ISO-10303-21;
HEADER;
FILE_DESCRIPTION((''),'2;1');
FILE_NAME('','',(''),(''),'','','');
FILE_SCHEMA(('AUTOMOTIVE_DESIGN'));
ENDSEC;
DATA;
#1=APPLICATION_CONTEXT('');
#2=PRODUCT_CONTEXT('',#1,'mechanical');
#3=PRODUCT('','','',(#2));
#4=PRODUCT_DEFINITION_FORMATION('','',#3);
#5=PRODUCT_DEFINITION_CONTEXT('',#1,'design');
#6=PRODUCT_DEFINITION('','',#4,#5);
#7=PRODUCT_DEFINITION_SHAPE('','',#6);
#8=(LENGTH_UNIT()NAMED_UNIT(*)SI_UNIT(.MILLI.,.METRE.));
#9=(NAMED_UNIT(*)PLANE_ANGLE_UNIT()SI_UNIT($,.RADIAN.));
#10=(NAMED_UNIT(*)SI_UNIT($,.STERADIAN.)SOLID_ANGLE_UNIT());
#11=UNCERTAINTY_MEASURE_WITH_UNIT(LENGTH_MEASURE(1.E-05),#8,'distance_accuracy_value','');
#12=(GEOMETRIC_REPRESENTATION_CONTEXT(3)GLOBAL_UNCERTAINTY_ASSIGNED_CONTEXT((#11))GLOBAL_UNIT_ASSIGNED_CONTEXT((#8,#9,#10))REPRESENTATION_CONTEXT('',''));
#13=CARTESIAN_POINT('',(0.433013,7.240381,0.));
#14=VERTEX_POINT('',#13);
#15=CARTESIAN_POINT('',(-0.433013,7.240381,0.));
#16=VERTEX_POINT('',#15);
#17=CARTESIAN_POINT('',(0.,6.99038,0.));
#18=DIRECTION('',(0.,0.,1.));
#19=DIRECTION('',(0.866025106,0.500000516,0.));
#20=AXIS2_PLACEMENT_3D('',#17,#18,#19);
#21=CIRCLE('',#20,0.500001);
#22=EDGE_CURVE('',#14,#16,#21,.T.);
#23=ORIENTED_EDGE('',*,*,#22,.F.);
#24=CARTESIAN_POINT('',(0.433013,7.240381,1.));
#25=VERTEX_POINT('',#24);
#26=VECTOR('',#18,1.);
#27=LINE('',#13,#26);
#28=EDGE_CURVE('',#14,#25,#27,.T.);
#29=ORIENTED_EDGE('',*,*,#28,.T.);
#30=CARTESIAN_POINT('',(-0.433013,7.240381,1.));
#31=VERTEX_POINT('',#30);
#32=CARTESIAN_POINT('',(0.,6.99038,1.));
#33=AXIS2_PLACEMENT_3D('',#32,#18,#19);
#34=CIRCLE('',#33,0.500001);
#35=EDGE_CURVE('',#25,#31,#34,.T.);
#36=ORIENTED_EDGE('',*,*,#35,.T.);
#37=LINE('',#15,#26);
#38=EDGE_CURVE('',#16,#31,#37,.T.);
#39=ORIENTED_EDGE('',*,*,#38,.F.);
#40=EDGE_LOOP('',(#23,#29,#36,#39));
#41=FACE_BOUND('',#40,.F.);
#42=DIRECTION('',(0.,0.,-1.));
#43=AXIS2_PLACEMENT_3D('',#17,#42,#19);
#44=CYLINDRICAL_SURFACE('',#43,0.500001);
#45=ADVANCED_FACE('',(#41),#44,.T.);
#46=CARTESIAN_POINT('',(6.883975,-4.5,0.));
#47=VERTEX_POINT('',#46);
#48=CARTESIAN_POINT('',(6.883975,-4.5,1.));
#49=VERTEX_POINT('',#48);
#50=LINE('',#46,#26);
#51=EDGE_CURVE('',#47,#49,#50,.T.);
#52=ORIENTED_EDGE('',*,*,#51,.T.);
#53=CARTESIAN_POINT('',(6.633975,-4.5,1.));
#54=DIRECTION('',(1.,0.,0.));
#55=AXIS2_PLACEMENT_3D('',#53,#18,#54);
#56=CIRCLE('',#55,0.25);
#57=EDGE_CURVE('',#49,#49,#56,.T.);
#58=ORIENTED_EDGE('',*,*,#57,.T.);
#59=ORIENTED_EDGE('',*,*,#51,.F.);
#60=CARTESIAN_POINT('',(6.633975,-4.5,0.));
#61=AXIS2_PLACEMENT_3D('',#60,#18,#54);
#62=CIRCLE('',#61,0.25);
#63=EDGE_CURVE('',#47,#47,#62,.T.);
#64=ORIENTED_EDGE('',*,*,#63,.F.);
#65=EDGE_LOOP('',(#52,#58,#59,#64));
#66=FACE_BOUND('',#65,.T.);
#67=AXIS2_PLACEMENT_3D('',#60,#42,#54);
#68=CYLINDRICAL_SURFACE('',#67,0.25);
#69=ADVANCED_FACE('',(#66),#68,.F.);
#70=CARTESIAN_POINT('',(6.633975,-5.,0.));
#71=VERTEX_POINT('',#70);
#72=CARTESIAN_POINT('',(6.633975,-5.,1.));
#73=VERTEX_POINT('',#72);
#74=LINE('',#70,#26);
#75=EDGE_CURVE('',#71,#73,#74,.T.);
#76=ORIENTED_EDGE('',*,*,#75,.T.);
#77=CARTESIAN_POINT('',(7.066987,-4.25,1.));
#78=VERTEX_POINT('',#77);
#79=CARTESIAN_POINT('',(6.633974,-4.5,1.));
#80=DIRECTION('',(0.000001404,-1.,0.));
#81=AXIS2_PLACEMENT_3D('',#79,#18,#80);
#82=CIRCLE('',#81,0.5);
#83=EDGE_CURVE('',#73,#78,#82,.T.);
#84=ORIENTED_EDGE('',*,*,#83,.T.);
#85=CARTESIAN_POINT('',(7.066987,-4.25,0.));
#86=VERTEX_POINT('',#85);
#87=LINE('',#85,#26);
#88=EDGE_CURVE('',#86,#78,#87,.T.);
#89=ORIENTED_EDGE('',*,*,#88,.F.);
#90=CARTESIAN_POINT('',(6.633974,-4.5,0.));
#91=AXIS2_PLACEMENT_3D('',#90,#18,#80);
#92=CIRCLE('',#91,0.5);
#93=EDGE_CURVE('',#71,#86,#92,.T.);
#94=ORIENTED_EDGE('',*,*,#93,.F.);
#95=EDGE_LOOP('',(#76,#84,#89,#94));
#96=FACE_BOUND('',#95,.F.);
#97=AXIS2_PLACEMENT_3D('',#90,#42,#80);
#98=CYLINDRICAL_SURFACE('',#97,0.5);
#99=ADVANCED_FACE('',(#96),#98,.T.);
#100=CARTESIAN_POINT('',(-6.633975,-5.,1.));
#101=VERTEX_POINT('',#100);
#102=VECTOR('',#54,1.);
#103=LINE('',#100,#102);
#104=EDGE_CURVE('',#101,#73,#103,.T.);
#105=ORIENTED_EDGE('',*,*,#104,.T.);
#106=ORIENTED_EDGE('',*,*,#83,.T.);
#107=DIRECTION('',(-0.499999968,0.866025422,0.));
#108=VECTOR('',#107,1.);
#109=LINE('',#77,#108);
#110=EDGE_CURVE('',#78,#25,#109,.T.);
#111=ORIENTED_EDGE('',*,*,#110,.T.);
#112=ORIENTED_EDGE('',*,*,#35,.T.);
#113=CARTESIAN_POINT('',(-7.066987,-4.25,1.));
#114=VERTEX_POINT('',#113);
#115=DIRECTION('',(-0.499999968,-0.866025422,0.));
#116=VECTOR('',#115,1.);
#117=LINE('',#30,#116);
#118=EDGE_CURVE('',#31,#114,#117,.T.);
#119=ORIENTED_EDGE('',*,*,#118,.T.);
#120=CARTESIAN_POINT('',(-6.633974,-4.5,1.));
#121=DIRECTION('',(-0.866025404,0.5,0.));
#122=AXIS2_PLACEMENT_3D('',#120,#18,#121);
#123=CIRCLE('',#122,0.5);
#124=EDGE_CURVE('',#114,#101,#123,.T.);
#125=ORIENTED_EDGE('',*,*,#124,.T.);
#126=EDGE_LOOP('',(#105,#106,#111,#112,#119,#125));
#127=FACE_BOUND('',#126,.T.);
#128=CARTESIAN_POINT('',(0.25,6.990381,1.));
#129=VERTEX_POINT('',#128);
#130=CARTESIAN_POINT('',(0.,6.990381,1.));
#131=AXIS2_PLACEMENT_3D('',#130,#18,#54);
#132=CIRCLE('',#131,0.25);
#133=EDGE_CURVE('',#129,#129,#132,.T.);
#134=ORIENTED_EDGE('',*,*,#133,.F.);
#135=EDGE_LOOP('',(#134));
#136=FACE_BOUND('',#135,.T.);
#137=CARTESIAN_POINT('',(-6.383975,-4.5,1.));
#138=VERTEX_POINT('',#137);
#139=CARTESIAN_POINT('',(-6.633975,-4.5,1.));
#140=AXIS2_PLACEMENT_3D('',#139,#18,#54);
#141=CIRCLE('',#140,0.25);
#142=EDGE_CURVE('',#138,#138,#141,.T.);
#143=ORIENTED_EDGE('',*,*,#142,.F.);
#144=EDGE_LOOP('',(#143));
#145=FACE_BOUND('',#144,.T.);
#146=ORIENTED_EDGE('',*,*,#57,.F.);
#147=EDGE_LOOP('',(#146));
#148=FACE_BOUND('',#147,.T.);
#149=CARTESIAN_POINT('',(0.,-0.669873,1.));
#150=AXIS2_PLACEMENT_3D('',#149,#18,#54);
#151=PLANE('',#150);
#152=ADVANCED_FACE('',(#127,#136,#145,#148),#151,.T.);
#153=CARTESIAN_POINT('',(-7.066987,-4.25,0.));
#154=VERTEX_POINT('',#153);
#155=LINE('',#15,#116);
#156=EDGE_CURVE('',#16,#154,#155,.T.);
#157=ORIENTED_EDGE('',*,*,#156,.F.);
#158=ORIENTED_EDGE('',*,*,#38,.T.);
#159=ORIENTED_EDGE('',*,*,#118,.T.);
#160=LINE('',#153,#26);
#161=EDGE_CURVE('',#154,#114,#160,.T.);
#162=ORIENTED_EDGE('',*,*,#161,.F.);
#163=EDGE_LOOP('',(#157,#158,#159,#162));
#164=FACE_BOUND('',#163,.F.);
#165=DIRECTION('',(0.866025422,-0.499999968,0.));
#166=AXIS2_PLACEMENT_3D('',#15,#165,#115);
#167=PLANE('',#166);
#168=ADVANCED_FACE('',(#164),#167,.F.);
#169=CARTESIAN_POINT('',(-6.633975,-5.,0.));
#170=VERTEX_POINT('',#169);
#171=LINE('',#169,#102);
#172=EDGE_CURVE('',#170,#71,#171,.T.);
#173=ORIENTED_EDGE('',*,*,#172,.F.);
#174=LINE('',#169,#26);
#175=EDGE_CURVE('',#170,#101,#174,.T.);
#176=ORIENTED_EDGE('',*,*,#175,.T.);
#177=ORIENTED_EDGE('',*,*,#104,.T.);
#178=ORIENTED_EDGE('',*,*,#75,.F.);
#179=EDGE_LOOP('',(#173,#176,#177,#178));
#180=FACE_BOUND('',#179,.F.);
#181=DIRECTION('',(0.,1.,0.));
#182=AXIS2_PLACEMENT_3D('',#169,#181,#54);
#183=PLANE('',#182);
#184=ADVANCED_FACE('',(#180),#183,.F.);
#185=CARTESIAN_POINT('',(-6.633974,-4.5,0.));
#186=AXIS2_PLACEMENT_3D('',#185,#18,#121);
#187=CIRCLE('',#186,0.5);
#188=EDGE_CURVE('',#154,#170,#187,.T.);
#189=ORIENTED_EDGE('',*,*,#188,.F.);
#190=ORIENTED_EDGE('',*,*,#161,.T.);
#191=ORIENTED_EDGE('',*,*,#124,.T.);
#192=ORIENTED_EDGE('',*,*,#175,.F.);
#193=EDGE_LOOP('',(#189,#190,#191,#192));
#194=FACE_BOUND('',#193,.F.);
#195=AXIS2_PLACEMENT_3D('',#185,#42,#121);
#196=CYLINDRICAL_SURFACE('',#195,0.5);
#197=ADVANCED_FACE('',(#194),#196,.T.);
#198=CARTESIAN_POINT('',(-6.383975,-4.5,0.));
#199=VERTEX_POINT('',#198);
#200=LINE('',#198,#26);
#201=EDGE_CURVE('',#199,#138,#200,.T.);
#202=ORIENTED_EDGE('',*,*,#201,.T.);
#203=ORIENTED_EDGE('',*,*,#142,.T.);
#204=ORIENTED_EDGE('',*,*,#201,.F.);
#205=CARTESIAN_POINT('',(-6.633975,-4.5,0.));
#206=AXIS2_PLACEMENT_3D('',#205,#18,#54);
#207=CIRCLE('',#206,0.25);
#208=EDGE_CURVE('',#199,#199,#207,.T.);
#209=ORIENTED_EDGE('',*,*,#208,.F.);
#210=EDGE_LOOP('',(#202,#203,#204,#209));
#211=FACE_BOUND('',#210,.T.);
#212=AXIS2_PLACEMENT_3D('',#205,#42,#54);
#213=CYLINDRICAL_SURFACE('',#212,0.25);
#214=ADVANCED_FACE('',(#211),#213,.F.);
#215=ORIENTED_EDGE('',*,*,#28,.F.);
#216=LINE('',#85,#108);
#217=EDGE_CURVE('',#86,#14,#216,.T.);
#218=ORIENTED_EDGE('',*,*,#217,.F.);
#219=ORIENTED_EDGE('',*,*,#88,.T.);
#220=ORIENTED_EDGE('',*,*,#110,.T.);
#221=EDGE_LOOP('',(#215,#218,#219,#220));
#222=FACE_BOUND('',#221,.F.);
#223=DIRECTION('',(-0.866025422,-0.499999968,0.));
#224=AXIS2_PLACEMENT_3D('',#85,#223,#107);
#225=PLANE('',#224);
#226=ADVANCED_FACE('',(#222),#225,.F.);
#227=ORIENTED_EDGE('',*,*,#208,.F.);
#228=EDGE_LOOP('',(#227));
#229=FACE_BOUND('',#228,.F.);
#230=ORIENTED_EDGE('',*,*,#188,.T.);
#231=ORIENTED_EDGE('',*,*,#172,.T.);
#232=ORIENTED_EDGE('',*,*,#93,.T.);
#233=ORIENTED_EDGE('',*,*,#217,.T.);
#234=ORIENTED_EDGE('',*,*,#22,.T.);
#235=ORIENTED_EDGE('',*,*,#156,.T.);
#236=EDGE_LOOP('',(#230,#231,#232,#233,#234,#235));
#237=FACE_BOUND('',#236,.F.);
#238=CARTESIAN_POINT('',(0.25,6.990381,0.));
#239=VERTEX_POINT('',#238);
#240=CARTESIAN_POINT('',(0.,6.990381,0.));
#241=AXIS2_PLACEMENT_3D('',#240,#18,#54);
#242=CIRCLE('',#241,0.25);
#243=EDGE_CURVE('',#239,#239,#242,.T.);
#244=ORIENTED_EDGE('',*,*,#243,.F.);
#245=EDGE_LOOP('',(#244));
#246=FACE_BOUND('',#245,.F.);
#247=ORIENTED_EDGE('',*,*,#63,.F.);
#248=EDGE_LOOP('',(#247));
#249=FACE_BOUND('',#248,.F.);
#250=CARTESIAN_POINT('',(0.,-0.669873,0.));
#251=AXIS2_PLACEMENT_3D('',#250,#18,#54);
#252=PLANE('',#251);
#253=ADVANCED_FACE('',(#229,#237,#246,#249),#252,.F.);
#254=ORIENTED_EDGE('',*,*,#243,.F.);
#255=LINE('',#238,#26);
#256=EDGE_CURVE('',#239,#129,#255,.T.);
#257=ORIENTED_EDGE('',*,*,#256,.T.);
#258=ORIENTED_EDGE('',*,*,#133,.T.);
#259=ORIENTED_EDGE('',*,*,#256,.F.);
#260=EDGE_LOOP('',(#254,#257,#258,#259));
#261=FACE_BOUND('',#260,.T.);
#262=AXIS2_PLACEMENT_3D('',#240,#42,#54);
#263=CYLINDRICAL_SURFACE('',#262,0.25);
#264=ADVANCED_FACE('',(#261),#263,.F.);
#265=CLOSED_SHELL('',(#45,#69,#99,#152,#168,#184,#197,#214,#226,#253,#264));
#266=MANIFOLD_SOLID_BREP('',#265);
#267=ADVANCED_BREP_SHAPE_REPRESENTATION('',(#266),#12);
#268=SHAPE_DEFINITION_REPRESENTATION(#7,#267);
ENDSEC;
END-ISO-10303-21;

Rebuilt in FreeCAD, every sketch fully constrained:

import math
import FreeCAD as App
import Part
import Sketcher
from FreeCAD import Vector
Q = App.Units.Quantity

doc = App.newDocument("Part")
body = doc.addObject("PartDesign::Body", "Body")

# Sketch on XY plane
sketch1 = body.newObject("Sketcher::SketchObject", "Sketch")
sketch1.AttachmentSupport = (doc.getObject("XY_Plane"), [""])
sketch1.MapMode = "FlatFace"
sketch1.addGeometry([
    Part.ArcOfCircle(Part.Circle(Vector(0, 6.99, 0), Vector(0, 0, 1), 0.5), math.radians(30), math.radians(150)),  # 0
    Part.LineSegment(Vector(-0.43, 7.24, 0), Vector(-7.07, -4.25, 0)),  # 1
    Part.ArcOfCircle(Part.Circle(Vector(-6.63, -4.5, 0), Vector(0, 0, 1), 0.5), math.radians(150), math.radians(270)),  # 2
    Part.LineSegment(Vector(-6.63, -5, 0), Vector(6.63, -5, 0)),  # 3
    Part.ArcOfCircle(Part.Circle(Vector(6.63, -4.5, 0), Vector(0, 0, 1), 0.5), math.radians(-90), math.radians(30)),  # 4
    Part.LineSegment(Vector(7.07, -4.25, 0), Vector(0.43, 7.24, 0)),  # 5
    Part.Circle(Vector(-6.63, -4.5, 0), Vector(0, 0, 1), 0.25),  # 6
    Part.Circle(Vector(6.63, -4.5, 0), Vector(0, 0, 1), 0.25),  # 7
    Part.Circle(Vector(0, 6.99, 0), Vector(0, 0, 1), 0.25),  # 8
], False)
sketch1.addConstraint([
    Sketcher.Constraint("Tangent", 0, 2, 1, 1),
    Sketcher.Constraint("Tangent", 1, 2, 2, 1),
    Sketcher.Constraint("Tangent", 2, 2, 3, 1),
    Sketcher.Constraint("Tangent", 3, 2, 4, 1),
    Sketcher.Constraint("Tangent", 4, 2, 5, 1),
    Sketcher.Constraint("Tangent", 5, 2, 0, 1),
    Sketcher.Constraint("Horizontal", 3),
    Sketcher.Constraint("Coincident", 6, 3, 2, 3),
    Sketcher.Constraint("Coincident", 7, 3, 4, 3),
    Sketcher.Constraint("Coincident", 8, 3, 0, 3),
    Sketcher.Constraint("Equal", 0, 2),
    Sketcher.Constraint("Equal", 2, 4),
    Sketcher.Constraint("Equal", 6, 7),
    Sketcher.Constraint("Equal", 7, 8),
    Sketcher.Constraint("Symmetric", 1, 2, 4, 2, -2),
    Sketcher.Constraint("Diameter", 6, 0.5),
    Sketcher.Constraint("Radius", 0, 0.500001),
    Sketcher.Constraint("Angle", 1, Q("-119.999998 deg")),
    Sketcher.Constraint("DistanceY", 2, 2, -1, 1, 5.0),
    Sketcher.Constraint("DistanceX", 3, 1, 3, 2, 13.26795),
])
pad1 = body.newObject("PartDesign::Pad", "Pad")
pad1.Profile = sketch1
pad1.Length = 1

doc.recompute()
